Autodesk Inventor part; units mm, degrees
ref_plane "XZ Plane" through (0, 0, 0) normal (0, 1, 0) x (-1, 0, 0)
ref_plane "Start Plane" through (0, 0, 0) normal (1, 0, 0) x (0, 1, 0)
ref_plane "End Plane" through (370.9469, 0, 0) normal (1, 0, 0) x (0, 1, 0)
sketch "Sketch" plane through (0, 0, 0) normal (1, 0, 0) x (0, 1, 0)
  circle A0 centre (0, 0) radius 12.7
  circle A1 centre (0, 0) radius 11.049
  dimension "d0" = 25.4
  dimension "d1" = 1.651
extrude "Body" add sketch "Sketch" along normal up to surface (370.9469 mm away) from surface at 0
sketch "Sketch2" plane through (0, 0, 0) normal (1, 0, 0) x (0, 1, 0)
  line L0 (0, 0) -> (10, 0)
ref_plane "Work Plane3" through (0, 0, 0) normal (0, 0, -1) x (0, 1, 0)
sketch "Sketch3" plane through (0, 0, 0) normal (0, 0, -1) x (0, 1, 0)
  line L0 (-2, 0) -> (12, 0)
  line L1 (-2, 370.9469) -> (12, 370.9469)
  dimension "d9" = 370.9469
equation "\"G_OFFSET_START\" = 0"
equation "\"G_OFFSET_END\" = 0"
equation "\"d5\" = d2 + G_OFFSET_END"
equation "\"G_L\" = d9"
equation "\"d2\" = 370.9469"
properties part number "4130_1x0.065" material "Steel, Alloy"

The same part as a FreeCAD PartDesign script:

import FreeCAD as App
import Part
import Sketcher
Q = App.Units.Quantity

doc = App.newDocument("Part")
body = doc.addObject("PartDesign::Body", "Body")

sketch1 = doc.addObject("Sketcher::SketchObject", "Sketch")
body.addObject(sketch1)
sketch1.AttachmentSupport = (doc.YZ_Plane, [""])
sketch1.MapMode = "FlatFace"
sketch1.addGeometry(Part.Circle(App.Vector(0, 0, 0), App.Vector(0, 0, 1), 12.7), False)
sketch1.addGeometry(Part.Circle(App.Vector(0, 0, 0), App.Vector(0, 0, 1), 11.049), False)
sketch1.addConstraint(Sketcher.Constraint("Coincident", 0, 3, -1, 1))
sketch1.addConstraint(Sketcher.Constraint("Coincident", 1, 3, -1, 1))
sketch1.addConstraint(Sketcher.Constraint("Diameter", 0, Q("1 in")))
sketch1.addConstraint(Sketcher.Constraint("Diameter", 1, Q("0.87 in")))
pad1 = doc.addObject("PartDesign::Pad", "Pad")
body.addObject(pad1)
pad1.Profile = sketch1
pad1.Length = Q("14.6042087 in")

doc.recompute()
